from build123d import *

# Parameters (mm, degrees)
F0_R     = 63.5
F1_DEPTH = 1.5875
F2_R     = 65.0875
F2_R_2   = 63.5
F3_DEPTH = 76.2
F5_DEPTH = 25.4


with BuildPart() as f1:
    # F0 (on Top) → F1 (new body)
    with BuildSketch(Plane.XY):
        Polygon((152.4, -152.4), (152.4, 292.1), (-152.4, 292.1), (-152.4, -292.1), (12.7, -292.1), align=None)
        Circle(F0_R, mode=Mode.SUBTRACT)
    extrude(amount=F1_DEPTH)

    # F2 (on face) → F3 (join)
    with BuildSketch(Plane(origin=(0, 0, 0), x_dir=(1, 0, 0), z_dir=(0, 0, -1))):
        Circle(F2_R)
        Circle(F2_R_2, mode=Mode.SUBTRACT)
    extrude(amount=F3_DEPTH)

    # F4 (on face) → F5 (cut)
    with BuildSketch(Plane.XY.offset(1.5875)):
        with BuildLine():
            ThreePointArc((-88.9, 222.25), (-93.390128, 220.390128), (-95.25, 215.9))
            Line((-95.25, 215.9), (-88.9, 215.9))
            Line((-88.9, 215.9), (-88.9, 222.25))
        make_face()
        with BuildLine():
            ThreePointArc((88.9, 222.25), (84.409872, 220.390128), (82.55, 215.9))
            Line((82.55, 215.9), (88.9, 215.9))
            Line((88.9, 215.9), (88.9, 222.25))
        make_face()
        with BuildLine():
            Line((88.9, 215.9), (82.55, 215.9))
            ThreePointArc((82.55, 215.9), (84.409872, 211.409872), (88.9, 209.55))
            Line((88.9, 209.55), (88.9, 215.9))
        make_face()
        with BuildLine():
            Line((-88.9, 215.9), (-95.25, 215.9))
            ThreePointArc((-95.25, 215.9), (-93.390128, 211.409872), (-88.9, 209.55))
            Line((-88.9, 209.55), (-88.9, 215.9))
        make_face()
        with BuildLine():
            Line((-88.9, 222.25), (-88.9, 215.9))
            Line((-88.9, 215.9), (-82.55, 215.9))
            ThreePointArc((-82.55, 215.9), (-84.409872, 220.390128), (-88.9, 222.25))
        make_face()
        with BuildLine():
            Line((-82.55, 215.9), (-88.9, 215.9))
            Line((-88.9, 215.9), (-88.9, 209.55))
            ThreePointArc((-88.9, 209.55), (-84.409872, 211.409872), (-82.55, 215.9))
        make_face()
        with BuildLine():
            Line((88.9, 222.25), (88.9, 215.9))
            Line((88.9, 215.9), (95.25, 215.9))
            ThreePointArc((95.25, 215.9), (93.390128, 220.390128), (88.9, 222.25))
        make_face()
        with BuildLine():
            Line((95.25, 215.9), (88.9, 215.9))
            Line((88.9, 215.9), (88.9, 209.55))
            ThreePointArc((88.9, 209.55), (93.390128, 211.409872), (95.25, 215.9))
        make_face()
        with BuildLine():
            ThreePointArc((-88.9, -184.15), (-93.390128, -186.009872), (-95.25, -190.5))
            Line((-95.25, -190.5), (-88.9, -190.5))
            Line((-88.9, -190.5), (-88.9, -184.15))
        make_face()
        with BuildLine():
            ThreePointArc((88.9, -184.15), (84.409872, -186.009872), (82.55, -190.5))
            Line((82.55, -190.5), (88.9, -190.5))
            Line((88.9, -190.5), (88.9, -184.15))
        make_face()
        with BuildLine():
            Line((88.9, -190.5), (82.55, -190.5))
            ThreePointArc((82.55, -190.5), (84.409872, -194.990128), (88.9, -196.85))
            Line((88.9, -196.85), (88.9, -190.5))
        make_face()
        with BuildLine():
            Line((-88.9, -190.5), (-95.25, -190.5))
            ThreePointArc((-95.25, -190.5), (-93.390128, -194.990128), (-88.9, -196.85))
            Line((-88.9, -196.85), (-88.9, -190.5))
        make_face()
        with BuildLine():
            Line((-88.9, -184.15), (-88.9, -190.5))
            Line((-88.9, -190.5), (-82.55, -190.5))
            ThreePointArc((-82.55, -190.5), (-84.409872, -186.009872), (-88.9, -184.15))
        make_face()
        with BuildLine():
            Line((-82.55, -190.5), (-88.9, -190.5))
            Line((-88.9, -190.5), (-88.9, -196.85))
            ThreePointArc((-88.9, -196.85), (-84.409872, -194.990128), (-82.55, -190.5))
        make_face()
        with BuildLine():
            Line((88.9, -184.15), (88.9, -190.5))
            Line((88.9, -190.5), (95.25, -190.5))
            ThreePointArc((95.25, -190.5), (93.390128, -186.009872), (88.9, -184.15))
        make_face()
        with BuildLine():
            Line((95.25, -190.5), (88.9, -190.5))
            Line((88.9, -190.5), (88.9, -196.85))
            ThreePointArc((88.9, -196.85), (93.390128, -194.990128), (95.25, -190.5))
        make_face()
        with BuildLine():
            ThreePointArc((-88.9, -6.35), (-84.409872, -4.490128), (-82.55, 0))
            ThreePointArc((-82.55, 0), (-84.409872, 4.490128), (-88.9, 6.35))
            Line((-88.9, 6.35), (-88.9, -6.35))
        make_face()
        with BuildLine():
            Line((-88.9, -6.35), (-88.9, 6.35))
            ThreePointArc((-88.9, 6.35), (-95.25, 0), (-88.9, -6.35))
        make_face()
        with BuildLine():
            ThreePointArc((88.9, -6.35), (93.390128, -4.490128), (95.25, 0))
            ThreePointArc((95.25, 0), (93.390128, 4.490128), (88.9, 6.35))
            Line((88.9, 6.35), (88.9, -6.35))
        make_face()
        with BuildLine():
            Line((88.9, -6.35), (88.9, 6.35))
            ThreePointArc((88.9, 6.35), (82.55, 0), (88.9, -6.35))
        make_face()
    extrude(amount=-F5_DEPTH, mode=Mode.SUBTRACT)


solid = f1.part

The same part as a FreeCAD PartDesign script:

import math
import FreeCAD as App
import Part
import Sketcher
from FreeCAD import Vector
Q = App.Units.Quantity


def add_polygon(sketch, points):
    """Adds a closed chain of lines whose ends are joined by coincident constraints."""
    first, n = sketch.GeometryCount, len(points)
    for a, b in zip(points, points[1:] + points[:1]):
        sketch.addGeometry(Part.LineSegment(App.Vector(*a, 0), App.Vector(*b, 0)), False)
    for i in range(n):
        sketch.addConstraint(Sketcher.Constraint("Coincident", first + i, 2, first + (i + 1) % n, 1))

doc = App.newDocument("Part")
params = doc.addObject("Spreadsheet::Sheet", "Params")
for row, (alias, value) in enumerate([
    ("sketch1_diameter", "5 in"),
    ("sketch1_width", "12 in"),
    ("sketch1_height", "23 in"),
    ("sketch1_width2", "6.5 in"),
    ("sketch1_height2", "17.5 in"),
    ("pad1_length", "0.0625 in"),
    ("sketch2_diameter", "5 in"),
    ("sketch2_diameter2", "5.125 in"),
    ("pad2_length", "3 in"),
    ("sketch3_radius", "0.25 in"),
    ("pocket1_length", "1 in"),
], start=1):
    params.set(f"A{row}", alias)
    params.set(f"B{row}", "=" + value)
    params.setAlias(f"B{row}", alias)

body = doc.addObject("PartDesign::Body", "Body")

# Sketch on XY plane
sketch1 = body.newObject("Sketcher::SketchObject", "Sketch")
sketch1.AttachmentSupport = (doc.getObject("XY_Plane"), [""])
sketch1.MapMode = "FlatFace"
add_polygon(sketch1, [(152.4, -152.4), (152.4, 292.1), (-152.4, 292.1), (-152.4, -292.1), (12.7, -292.1)])  # lines 0-4
sketch1.addGeometry(Part.Circle(Vector(0, 0, 0), Vector(0, 0, 1), 63.5), False)  # 5
sketch1.addConstraint([
    Sketcher.Constraint("Vertical", 0),
    Sketcher.Constraint("Horizontal", 1),
    Sketcher.Constraint("Vertical", 2),
    Sketcher.Constraint("Horizontal", 3),
    Sketcher.Constraint("Coincident", 5, 3, -1, 1),
    Sketcher.Constraint("Symmetric", 0, 2, 2, 2, -1, 1),
    Sketcher.Constraint("Diameter", 5, Q("5 in")),
    Sketcher.Constraint("DistanceX", 1, 2, 1, 1, Q("12 in")),
    Sketcher.Constraint("DistanceY", 2, 2, 2, 1, Q("23 in")),
    Sketcher.Constraint("DistanceX", 3, 1, 3, 2, Q("6.5 in")),
    Sketcher.Constraint("DistanceY", 0, 1, 0, 2, Q("17.5 in")),
])
sketch1.setExpression("Constraints[11]", "Params.sketch1_diameter")
sketch1.setExpression("Constraints[12]", "Params.sketch1_width")
sketch1.setExpression("Constraints[13]", "Params.sketch1_height")
sketch1.setExpression("Constraints[14]", "Params.sketch1_width2")
sketch1.setExpression("Constraints[15]", "Params.sketch1_height2")
pad1 = body.newObject("PartDesign::Pad", "Pad")
pad1.Profile = sketch1
pad1.setExpression("Length", "Params.pad1_length")

# Sketch on XY plane
sketch2 = body.newObject("Sketcher::SketchObject", "Sketch001")
sketch2.AttachmentSupport = (doc.getObject("XY_Plane"), [""])
sketch2.MapMode = "FlatFace"
sketch2.addGeometry([
    Part.Circle(Vector(0, 0, 0), Vector(0, 0, 1), 65.0875),
    Part.Circle(Vector(0, 0, 0), Vector(0, 0, 1), 63.5),
], False)
sketch2.addConstraint([
    Sketcher.Constraint("Coincident", 0, 3, -1, 1),
    Sketcher.Constraint("Coincident", 1, 3, -1, 1),
    Sketcher.Constraint("Diameter", 1, Q("5 in")),
    Sketcher.Constraint("Diameter", 0, Q("5.125 in")),
])
sketch2.setExpression("Constraints[2]", "Params.sketch2_diameter")
sketch2.setExpression("Constraints[3]", "Params.sketch2_diameter2")
pad2 = body.newObject("PartDesign::Pad", "Pad001")
pad2.Profile = sketch2
pad2.setExpression("Length", "Params.pad2_length")
pad2.Reversed = True

# Sketch on XY plane
sketch3 = body.newObject("Sketcher::SketchObject", "Sketch002")
sketch3.AttachmentSupport = (doc.getObject("XY_Plane"), [""])
sketch3.MapMode = "FlatFace"
sketch3.AttachmentOffset = App.Placement(Vector(0, 0, 0.0625 * 25.4), App.Rotation())
sketch3.addGeometry([
    Part.ArcOfCircle(Part.Circle(Vector(-88.9, 215.9, 0), Vector(0, 0, 1), 6.35), math.radians(90.000002), math.radians(179.999998)),  # 0
    Part.ArcOfCircle(Part.Circle(Vector(-88.9, 215.9, 0), Vector(0, 0, 1), 6.35), math.radians(-179.999998), math.radians(-90.000002)),  # 1
    Part.ArcOfCircle(Part.Circle(Vector(-88.9, 215.9, 0), Vector(0, 0, 1), 6.35), math.radians(-89.999998), math.radians(-0.000002)),  # 2
    Part.ArcOfCircle(Part.Circle(Vector(-88.9, 215.9, 0), Vector(0, 0, 1), 6.35), math.radians(0.000002), math.radians(89.999998)),  # 3
    Part.ArcOfCircle(Part.Circle(Vector(88.9, 215.9, 0), Vector(0, 0, 1), 6.35), math.radians(90.000002), math.radians(179.999998)),  # 4
    Part.ArcOfCircle(Part.Circle(Vector(88.9, 215.9, 0), Vector(0, 0, 1), 6.35), math.radians(-179.999998), math.radians(-90.000002)),  # 5
    Part.ArcOfCircle(Part.Circle(Vector(88.9, 215.9, 0), Vector(0, 0, 1), 6.35), math.radians(-89.999998), math.radians(-0.000002)),  # 6
    Part.ArcOfCircle(Part.Circle(Vector(88.9, 215.9, 0), Vector(0, 0, 1), 6.35), math.radians(0.000002), math.radians(89.999998)),  # 7
    Part.ArcOfCircle(Part.Circle(Vector(-88.9, -190.5, 0), Vector(0, 0, 1), 6.35), math.radians(90.000002), math.radians(179.999998)),  # 8
    Part.ArcOfCircle(Part.Circle(Vector(-88.9, -190.5, 0), Vector(0, 0, 1), 6.35), math.radians(-179.999998), math.radians(-90.000002)),  # 9
    Part.ArcOfCircle(Part.Circle(Vector(-88.9, -190.5, 0), Vector(0, 0, 1), 6.35), math.radians(-89.999998), math.radians(-0.000002)),  # 10
    Part.ArcOfCircle(Part.Circle(Vector(-88.9, -190.5, 0), Vector(0, 0, 1), 6.35), math.radians(0.000002), math.radians(89.999998)),  # 11
    Part.ArcOfCircle(Part.Circle(Vector(88.9, -190.5, 0), Vector(0, 0, 1), 6.35), math.radians(90.000002), math.radians(179.999998)),  # 12
    Part.ArcOfCircle(Part.Circle(Vector(88.9, -190.5, 0), Vector(0, 0, 1), 6.35), math.radians(-179.999998), math.radians(-90.000002)),  # 13
    Part.ArcOfCircle(Part.Circle(Vector(88.9, -190.5, 0), Vector(0, 0, 1), 6.35), math.radians(-89.999998), math.radians(-0.000002)),  # 14
    Part.ArcOfCircle(Part.Circle(Vector(88.9, -190.5, 0), Vector(0, 0, 1), 6.35), math.radians(0.000002), math.radians(89.999998)),  # 15
    Part.ArcOfCircle(Part.Circle(Vector(-88.9, 0, 0), Vector(0, 0, 1), 6.35), math.radians(-89.999998), math.radians(-0.000002)),  # 16
    Part.ArcOfCircle(Part.Circle(Vector(-88.9, 0, 0), Vector(0, 0, 1), 6.35), math.radians(0.000002), math.radians(89.999998)),  # 17
    Part.ArcOfCircle(Part.Circle(Vector(-88.9, 0, 0), Vector(0, 0, 1), 6.35), math.radians(90), math.radians(270)),  # 18
    Part.ArcOfCircle(Part.Circle(Vector(88.9, 0, 0), Vector(0, 0, 1), 6.35), math.radians(-89.999998), math.radians(-0.000002)),  # 19
    Part.ArcOfCircle(Part.Circle(Vector(88.9, 0, 0), Vector(0, 0, 1), 6.35), math.radians(0.000002), math.radians(89.999998)),  # 20
    Part.ArcOfCircle(Part.Circle(Vector(88.9, 0, 0), Vector(0, 0, 1), 6.35), math.radians(90), math.radians(270)),  # 21
], False)
sketch3.addConstraint([
    Sketcher.Constraint("Tangent", 0, 2, 1, 1),
    Sketcher.Constraint("Tangent", 1, 2, 2, 1),
    Sketcher.Constraint("Tangent", 2, 2, 3, 1),
    Sketcher.Constraint("Tangent", 3, 2, 0, 1),
    Sketcher.Constraint("Tangent", 4, 2, 5, 1),
    Sketcher.Constraint("Tangent", 5, 2, 6, 1),
    Sketcher.Constraint("Tangent", 6, 2, 7, 1),
    Sketcher.Constraint("Tangent", 7, 2, 4, 1),
    Sketcher.Constraint("Tangent", 8, 2, 9, 1),
    Sketcher.Constraint("Tangent", 9, 2, 10, 1),
    Sketcher.Constraint("Tangent", 10, 2, 11, 1),
    Sketcher.Constraint("Tangent", 11, 2, 8, 1),
    Sketcher.Constraint("Tangent", 12, 2, 13, 1),
    Sketcher.Constraint("Tangent", 13, 2, 14, 1),
    Sketcher.Constraint("Tangent", 14, 2, 15, 1),
    Sketcher.Constraint("Tangent", 15, 2, 12, 1),
    Sketcher.Constraint("Tangent", 16, 2, 17, 1),
    Sketcher.Constraint("Tangent", 17, 2, 18, 1),
    Sketcher.Constraint("Tangent", 18, 2, 16, 1),
    Sketcher.Constraint("Tangent", 19, 2, 20, 1),
    Sketcher.Constraint("Tangent", 20, 2, 21, 1),
    Sketcher.Constraint("Tangent", 21, 2, 19, 1),
    Sketcher.Constraint("Equal", 0, 1),
    Sketcher.Constraint("Equal", 3, 4),
    Sketcher.Constraint("Equal", 4, 5),
    Sketcher.Constraint("Equal", 7, 8),
    Sketcher.Constraint("Equal", 8, 9),
    Sketcher.Constraint("Equal", 11, 12),
    Sketcher.Constraint("Equal", 12, 13),
    Sketcher.Constraint("Equal", 15, 16),
    Sketcher.Constraint("Equal", 18, 19),
    Sketcher.Constraint("Symmetric", 16, 3, 19, 3, -1, 1),
    Sketcher.Constraint("Symmetric", 0, 3, 4, 3, -2),
    Sketcher.Constraint("Symmetric", 8, 3, 12, 3, -2),
    Sketcher.Constraint("Symmetric", 17, 2, 20, 2, -2),
    Sketcher.Constraint("PointOnObject", 16, 2, -1),
    Sketcher.Constraint("PointOnObject", 19, 2, -1),
    Sketcher.Constraint("Horizontal", 7, 3, 0, 2),
    Sketcher.Constraint("Horizontal", 0, 2, 2, 2),
    Sketcher.Constraint("Horizontal", 2, 2, 4, 2),
    Sketcher.Constraint("Horizontal", 4, 2, 6, 2),
    Sketcher.Constraint("Horizontal", 15, 3, 8, 2),
    Sketcher.Constraint("Horizontal", 8, 2, 10, 2),
    Sketcher.Constraint("Horizontal", 10, 2, 12, 2),
    Sketcher.Constraint("Horizontal", 12, 2, 14, 2),
    Sketcher.Constraint("Vertical", 3, 3, 8, 3),
    Sketcher.Constraint("Vertical", 11, 3, 16, 3),
    Sketcher.Constraint("Vertical", 18, 3, 1, 2),
    Sketcher.Constraint("Vertical", 1, 2, 3, 2),
    Sketcher.Constraint("Vertical", 21, 3, 5, 2),
    Sketcher.Constraint("Vertical", 5, 2, 7, 2),
    Sketcher.Constraint("Vertical", 3, 2, 9, 2),
    Sketcher.Constraint("Vertical", 9, 2, 11, 2),
    Sketcher.Constraint("Vertical", 7, 2, 13, 2),
    Sketcher.Constraint("Vertical", 13, 2, 15, 2),
    Sketcher.Constraint("Vertical", 11, 2, 17, 2),
    Sketcher.Constraint("Vertical", 17, 2, 18, 2),
    Sketcher.Constraint("Vertical", 20, 2, 21, 2),
    Sketcher.Constraint("Radius", 0, Q("0.25 in")),
    Sketcher.Constraint("DistanceX", 0, 3, 4, 3, Q("7 in")),
    Sketcher.Constraint("DistanceY", 8, 3, 0, 3, Q("16 in")),
    Sketcher.Constraint("DistanceY", -1, 1, 0, 3, Q("8.5 in")),
])
sketch3.setExpression("Constraints[58]", "Params.sketch3_radius")
pocket1 = body.newObject("PartDesign::Pocket", "Pocket")
pocket1.Profile = sketch3
pocket1.setExpression("Length", "Params.pocket1_length")

doc.recompute()
